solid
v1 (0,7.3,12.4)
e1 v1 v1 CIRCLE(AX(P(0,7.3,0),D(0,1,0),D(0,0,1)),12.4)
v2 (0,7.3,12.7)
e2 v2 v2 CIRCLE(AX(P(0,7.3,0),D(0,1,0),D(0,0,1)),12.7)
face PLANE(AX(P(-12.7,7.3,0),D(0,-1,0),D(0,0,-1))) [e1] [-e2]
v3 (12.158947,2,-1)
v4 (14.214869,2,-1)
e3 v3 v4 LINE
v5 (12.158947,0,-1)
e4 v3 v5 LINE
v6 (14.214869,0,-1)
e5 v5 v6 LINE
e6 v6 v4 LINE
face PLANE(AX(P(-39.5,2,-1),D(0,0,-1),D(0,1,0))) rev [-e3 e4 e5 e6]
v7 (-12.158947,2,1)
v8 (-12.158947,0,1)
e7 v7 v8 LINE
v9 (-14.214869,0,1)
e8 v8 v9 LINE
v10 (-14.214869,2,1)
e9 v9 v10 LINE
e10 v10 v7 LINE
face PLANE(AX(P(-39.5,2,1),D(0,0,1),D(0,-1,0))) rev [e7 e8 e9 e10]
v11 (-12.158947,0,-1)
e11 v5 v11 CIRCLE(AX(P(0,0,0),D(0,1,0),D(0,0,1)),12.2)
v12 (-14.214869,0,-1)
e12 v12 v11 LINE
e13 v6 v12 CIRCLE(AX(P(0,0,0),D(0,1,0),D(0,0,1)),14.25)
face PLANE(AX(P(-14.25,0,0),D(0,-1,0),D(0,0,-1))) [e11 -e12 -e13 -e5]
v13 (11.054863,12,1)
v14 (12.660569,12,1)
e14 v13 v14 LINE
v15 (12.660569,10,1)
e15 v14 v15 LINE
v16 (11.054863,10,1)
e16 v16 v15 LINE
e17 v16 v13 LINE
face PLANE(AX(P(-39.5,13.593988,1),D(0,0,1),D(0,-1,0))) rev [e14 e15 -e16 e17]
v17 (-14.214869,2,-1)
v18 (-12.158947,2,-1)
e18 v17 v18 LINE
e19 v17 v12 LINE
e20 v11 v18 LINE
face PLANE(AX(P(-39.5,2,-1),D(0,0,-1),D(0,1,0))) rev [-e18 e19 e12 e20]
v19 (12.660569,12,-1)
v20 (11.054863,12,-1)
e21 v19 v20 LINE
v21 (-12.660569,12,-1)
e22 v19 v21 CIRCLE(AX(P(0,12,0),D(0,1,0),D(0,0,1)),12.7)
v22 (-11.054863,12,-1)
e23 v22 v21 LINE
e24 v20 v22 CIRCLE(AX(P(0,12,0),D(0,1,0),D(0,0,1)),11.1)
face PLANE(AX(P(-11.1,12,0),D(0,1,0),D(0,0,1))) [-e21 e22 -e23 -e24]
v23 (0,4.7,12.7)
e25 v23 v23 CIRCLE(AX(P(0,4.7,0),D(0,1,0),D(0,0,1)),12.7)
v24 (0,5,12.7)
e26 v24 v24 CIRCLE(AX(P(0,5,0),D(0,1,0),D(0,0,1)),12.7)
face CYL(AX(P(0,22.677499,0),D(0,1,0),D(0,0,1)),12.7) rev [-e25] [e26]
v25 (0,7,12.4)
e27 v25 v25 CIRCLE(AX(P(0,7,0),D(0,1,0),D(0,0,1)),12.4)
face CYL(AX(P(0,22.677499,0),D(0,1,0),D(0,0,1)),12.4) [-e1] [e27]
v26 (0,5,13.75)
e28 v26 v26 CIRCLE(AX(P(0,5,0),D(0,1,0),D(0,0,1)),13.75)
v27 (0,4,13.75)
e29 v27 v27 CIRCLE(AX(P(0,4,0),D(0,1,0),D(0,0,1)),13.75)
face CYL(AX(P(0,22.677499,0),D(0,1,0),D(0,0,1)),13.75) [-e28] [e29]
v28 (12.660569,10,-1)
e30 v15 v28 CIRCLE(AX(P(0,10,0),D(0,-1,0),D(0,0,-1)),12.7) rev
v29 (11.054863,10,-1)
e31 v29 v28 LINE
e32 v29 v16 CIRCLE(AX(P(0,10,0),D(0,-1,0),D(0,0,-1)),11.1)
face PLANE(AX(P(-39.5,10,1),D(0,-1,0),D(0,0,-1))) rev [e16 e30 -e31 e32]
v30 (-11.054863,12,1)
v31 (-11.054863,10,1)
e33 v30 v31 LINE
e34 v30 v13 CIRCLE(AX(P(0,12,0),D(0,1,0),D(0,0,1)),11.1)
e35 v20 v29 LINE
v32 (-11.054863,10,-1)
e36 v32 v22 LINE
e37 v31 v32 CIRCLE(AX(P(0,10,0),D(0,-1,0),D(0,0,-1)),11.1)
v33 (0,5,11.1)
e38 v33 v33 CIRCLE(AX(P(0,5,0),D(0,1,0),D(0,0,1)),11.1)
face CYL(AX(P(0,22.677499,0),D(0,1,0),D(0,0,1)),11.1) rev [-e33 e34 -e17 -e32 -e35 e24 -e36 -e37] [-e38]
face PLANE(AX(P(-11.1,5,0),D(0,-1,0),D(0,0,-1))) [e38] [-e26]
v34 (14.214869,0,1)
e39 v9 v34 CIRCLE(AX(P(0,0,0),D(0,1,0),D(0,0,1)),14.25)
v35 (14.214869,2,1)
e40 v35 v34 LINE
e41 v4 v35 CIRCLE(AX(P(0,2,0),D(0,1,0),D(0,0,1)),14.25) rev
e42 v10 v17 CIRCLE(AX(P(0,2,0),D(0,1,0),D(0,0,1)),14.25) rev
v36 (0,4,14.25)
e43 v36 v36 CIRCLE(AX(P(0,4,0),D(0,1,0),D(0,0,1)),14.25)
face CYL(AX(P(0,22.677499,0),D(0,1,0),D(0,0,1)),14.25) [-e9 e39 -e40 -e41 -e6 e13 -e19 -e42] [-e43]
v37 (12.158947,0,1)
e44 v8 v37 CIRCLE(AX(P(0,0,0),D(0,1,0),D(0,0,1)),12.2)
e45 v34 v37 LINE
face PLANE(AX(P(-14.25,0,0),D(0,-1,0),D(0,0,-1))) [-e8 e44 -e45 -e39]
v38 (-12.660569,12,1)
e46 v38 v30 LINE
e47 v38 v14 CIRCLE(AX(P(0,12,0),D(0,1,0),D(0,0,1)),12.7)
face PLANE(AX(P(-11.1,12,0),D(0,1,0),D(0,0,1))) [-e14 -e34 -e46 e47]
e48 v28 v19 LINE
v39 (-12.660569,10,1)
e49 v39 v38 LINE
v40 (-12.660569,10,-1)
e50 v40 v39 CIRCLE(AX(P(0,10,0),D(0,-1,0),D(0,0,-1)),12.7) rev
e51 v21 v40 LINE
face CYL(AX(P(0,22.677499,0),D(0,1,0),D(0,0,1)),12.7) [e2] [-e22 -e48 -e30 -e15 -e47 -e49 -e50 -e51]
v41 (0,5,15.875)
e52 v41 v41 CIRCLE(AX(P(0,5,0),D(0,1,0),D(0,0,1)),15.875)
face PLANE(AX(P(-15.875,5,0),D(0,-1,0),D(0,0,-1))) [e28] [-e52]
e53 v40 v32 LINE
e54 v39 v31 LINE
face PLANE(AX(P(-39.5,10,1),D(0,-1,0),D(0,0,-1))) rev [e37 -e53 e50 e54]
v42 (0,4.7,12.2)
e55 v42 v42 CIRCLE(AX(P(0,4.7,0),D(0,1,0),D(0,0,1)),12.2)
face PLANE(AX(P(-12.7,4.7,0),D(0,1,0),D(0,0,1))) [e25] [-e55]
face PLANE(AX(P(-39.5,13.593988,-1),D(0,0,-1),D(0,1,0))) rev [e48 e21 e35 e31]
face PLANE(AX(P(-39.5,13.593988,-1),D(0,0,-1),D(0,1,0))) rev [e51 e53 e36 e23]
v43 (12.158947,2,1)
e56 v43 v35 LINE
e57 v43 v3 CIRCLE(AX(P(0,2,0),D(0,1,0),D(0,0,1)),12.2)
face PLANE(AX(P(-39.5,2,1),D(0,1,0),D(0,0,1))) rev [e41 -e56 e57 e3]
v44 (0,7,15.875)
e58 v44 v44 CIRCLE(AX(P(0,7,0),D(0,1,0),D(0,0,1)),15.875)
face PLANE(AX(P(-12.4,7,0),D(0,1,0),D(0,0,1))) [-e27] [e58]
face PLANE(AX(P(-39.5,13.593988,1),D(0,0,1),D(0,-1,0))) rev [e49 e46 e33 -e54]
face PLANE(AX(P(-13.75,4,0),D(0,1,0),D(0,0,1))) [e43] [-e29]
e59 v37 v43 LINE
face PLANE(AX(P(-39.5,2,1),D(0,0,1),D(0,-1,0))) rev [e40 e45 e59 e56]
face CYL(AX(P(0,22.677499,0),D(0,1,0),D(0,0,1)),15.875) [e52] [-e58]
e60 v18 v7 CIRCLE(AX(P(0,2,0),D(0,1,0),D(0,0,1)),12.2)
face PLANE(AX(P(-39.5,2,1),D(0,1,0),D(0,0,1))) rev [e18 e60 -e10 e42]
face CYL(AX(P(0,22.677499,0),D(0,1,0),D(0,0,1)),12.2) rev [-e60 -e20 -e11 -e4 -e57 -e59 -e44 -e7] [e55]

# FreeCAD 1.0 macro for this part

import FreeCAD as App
import Part
import Sketcher

V = App.Vector


def add_polygon(sketch, points):
    """Adds a closed chain of lines whose ends are joined by coincident constraints."""
    first, n = sketch.GeometryCount, len(points)
    for a, b in zip(points, points[1:] + points[:1]):
        sketch.addGeometry(Part.LineSegment(App.Vector(*a, 0), App.Vector(*b, 0)), False)
    for i in range(n):
        sketch.addConstraint(Sketcher.Constraint("Coincident", first + i, 2, first + (i + 1) % n, 1))

doc = App.newDocument("Part")
body = doc.addObject("PartDesign::Body", "Body")

sketch1 = body.newObject("Sketcher::SketchObject", "Sketch")
sketch1.AttachmentSupport = (doc.getObject("XY_Plane"), [""])
sketch1.MapMode = "FlatFace"
add_polygon(sketch1, [(-11.1, 12), (-12.7, 12), (-12.7, 7.3), (-12.4, 7.3), (-12.4, 7), (-15.88, 7), (-15.88, 5), (-13.75, 5), (-13.75, 4), (-14.25, 4), (-14.25, 0), (-12.2, 0), (-12.2, 4.7), (-12.7, 4.7), (-12.7, 5), (-11.1, 5)])
sketch1.addConstraint([
    Sketcher.Constraint("Horizontal", 0),
    Sketcher.Constraint("Vertical", 1),
    Sketcher.Constraint("Horizontal", 2),
    Sketcher.Constraint("Vertical", 3),
    Sketcher.Constraint("Horizontal", 4),
    Sketcher.Constraint("Vertical", 5),
    Sketcher.Constraint("Horizontal", 6),
    Sketcher.Constraint("Vertical", 7),
    Sketcher.Constraint("Horizontal", 8),
    Sketcher.Constraint("Vertical", 9),
    Sketcher.Constraint("Horizontal", 10),
    Sketcher.Constraint("Vertical", 11),
    Sketcher.Constraint("Horizontal", 12),
    Sketcher.Constraint("Vertical", 13),
    Sketcher.Constraint("Horizontal", 14),
    Sketcher.Constraint("Vertical", 15),
    Sketcher.Constraint("PointOnObject", 9, 2, -1),
    Sketcher.Constraint("Horizontal", 6, 2, 13, 2),
    Sketcher.Constraint("Vertical", 1, 2, 12, 2),
    Sketcher.Constraint("Equal", 8, 12),
    Sketcher.Constraint("Equal", 2, 3),
    Sketcher.Constraint("Equal", 1, 11),
    Sketcher.Constraint("Equal", 3, 13),
    Sketcher.Constraint("DistanceY", 5, 2, 5, 1, 2.0),
    Sketcher.Constraint("DistanceY", 7, 2, 7, 1, 1.0),
    Sketcher.Constraint("DistanceY", 9, 2, 9, 1, 4.0),
    Sketcher.Constraint("DistanceX", 0, 2, 0, 1, 1.6),
    Sketcher.Constraint("DistanceX", 2, 1, 2, 2, 0.3),
    Sketcher.Constraint("DistanceX", 8, 2, 8, 1, 0.5),
    Sketcher.Constraint("DistanceX", 10, 1, 10, 2, 2.05),
    Sketcher.Constraint("DistanceX", 0, 2, -1, 1, 12.7),
    Sketcher.Constraint("DistanceX", 4, 2, 4, 1, 3.475),
])
revolution = body.newObject("PartDesign::Revolution", "Revolution")
revolution.Profile = sketch1
revolution.ReferenceAxis = (sketch1, ["V_Axis"])
revolution.Angle = 360

sketch2 = body.newObject("Sketcher::SketchObject", "Sketch001")
sketch2.AttachmentSupport = (doc.getObject("YZ_Plane"), [""])
sketch2.MapMode = "FlatFace"
add_polygon(sketch2, [(13.6, 1), (10, 1), (10, -1), (13.6, -1)])
add_polygon(sketch2, [(2, 1), (-4.7, 1), (-4.7, -1), (2, -1)])
sketch2.addConstraint([
    Sketcher.Constraint("Horizontal", 0),
    Sketcher.Constraint("Vertical", 1),
    Sketcher.Constraint("Horizontal", 2),
    Sketcher.Constraint("Vertical", 3),
    Sketcher.Constraint("Horizontal", 4),
    Sketcher.Constraint("Vertical", 5),
    Sketcher.Constraint("Horizontal", 6),
    Sketcher.Constraint("Vertical", 7),
    Sketcher.Constraint("Horizontal", 3, 2, 4, 2),
    Sketcher.Constraint("Horizontal", 2, 2, 5, 2),
    Sketcher.Constraint("DistanceY", 1, 2, 1, 1, 2.0),
    Sketcher.Constraint("DistanceX", -1, 1, 0, 2, 10.0),
    Sketcher.Constraint("DistanceY", -1, 1, 0, 2, 1.0),
    Sketcher.Constraint("DistanceX", -1, 1, 6, 2, 2.0),
    Sketcher.Constraint("DistanceX", 0, 2, 0, 1, 3.593988),
    Sketcher.Constraint("DistanceX", 4, 2, 4, 1, 6.667892),
])
pocket1 = body.newObject("PartDesign::Pocket", "Pocket")
pocket1.Profile = sketch2
pocket1.Length = 79
pocket1.Midplane = True

doc.recompute()
